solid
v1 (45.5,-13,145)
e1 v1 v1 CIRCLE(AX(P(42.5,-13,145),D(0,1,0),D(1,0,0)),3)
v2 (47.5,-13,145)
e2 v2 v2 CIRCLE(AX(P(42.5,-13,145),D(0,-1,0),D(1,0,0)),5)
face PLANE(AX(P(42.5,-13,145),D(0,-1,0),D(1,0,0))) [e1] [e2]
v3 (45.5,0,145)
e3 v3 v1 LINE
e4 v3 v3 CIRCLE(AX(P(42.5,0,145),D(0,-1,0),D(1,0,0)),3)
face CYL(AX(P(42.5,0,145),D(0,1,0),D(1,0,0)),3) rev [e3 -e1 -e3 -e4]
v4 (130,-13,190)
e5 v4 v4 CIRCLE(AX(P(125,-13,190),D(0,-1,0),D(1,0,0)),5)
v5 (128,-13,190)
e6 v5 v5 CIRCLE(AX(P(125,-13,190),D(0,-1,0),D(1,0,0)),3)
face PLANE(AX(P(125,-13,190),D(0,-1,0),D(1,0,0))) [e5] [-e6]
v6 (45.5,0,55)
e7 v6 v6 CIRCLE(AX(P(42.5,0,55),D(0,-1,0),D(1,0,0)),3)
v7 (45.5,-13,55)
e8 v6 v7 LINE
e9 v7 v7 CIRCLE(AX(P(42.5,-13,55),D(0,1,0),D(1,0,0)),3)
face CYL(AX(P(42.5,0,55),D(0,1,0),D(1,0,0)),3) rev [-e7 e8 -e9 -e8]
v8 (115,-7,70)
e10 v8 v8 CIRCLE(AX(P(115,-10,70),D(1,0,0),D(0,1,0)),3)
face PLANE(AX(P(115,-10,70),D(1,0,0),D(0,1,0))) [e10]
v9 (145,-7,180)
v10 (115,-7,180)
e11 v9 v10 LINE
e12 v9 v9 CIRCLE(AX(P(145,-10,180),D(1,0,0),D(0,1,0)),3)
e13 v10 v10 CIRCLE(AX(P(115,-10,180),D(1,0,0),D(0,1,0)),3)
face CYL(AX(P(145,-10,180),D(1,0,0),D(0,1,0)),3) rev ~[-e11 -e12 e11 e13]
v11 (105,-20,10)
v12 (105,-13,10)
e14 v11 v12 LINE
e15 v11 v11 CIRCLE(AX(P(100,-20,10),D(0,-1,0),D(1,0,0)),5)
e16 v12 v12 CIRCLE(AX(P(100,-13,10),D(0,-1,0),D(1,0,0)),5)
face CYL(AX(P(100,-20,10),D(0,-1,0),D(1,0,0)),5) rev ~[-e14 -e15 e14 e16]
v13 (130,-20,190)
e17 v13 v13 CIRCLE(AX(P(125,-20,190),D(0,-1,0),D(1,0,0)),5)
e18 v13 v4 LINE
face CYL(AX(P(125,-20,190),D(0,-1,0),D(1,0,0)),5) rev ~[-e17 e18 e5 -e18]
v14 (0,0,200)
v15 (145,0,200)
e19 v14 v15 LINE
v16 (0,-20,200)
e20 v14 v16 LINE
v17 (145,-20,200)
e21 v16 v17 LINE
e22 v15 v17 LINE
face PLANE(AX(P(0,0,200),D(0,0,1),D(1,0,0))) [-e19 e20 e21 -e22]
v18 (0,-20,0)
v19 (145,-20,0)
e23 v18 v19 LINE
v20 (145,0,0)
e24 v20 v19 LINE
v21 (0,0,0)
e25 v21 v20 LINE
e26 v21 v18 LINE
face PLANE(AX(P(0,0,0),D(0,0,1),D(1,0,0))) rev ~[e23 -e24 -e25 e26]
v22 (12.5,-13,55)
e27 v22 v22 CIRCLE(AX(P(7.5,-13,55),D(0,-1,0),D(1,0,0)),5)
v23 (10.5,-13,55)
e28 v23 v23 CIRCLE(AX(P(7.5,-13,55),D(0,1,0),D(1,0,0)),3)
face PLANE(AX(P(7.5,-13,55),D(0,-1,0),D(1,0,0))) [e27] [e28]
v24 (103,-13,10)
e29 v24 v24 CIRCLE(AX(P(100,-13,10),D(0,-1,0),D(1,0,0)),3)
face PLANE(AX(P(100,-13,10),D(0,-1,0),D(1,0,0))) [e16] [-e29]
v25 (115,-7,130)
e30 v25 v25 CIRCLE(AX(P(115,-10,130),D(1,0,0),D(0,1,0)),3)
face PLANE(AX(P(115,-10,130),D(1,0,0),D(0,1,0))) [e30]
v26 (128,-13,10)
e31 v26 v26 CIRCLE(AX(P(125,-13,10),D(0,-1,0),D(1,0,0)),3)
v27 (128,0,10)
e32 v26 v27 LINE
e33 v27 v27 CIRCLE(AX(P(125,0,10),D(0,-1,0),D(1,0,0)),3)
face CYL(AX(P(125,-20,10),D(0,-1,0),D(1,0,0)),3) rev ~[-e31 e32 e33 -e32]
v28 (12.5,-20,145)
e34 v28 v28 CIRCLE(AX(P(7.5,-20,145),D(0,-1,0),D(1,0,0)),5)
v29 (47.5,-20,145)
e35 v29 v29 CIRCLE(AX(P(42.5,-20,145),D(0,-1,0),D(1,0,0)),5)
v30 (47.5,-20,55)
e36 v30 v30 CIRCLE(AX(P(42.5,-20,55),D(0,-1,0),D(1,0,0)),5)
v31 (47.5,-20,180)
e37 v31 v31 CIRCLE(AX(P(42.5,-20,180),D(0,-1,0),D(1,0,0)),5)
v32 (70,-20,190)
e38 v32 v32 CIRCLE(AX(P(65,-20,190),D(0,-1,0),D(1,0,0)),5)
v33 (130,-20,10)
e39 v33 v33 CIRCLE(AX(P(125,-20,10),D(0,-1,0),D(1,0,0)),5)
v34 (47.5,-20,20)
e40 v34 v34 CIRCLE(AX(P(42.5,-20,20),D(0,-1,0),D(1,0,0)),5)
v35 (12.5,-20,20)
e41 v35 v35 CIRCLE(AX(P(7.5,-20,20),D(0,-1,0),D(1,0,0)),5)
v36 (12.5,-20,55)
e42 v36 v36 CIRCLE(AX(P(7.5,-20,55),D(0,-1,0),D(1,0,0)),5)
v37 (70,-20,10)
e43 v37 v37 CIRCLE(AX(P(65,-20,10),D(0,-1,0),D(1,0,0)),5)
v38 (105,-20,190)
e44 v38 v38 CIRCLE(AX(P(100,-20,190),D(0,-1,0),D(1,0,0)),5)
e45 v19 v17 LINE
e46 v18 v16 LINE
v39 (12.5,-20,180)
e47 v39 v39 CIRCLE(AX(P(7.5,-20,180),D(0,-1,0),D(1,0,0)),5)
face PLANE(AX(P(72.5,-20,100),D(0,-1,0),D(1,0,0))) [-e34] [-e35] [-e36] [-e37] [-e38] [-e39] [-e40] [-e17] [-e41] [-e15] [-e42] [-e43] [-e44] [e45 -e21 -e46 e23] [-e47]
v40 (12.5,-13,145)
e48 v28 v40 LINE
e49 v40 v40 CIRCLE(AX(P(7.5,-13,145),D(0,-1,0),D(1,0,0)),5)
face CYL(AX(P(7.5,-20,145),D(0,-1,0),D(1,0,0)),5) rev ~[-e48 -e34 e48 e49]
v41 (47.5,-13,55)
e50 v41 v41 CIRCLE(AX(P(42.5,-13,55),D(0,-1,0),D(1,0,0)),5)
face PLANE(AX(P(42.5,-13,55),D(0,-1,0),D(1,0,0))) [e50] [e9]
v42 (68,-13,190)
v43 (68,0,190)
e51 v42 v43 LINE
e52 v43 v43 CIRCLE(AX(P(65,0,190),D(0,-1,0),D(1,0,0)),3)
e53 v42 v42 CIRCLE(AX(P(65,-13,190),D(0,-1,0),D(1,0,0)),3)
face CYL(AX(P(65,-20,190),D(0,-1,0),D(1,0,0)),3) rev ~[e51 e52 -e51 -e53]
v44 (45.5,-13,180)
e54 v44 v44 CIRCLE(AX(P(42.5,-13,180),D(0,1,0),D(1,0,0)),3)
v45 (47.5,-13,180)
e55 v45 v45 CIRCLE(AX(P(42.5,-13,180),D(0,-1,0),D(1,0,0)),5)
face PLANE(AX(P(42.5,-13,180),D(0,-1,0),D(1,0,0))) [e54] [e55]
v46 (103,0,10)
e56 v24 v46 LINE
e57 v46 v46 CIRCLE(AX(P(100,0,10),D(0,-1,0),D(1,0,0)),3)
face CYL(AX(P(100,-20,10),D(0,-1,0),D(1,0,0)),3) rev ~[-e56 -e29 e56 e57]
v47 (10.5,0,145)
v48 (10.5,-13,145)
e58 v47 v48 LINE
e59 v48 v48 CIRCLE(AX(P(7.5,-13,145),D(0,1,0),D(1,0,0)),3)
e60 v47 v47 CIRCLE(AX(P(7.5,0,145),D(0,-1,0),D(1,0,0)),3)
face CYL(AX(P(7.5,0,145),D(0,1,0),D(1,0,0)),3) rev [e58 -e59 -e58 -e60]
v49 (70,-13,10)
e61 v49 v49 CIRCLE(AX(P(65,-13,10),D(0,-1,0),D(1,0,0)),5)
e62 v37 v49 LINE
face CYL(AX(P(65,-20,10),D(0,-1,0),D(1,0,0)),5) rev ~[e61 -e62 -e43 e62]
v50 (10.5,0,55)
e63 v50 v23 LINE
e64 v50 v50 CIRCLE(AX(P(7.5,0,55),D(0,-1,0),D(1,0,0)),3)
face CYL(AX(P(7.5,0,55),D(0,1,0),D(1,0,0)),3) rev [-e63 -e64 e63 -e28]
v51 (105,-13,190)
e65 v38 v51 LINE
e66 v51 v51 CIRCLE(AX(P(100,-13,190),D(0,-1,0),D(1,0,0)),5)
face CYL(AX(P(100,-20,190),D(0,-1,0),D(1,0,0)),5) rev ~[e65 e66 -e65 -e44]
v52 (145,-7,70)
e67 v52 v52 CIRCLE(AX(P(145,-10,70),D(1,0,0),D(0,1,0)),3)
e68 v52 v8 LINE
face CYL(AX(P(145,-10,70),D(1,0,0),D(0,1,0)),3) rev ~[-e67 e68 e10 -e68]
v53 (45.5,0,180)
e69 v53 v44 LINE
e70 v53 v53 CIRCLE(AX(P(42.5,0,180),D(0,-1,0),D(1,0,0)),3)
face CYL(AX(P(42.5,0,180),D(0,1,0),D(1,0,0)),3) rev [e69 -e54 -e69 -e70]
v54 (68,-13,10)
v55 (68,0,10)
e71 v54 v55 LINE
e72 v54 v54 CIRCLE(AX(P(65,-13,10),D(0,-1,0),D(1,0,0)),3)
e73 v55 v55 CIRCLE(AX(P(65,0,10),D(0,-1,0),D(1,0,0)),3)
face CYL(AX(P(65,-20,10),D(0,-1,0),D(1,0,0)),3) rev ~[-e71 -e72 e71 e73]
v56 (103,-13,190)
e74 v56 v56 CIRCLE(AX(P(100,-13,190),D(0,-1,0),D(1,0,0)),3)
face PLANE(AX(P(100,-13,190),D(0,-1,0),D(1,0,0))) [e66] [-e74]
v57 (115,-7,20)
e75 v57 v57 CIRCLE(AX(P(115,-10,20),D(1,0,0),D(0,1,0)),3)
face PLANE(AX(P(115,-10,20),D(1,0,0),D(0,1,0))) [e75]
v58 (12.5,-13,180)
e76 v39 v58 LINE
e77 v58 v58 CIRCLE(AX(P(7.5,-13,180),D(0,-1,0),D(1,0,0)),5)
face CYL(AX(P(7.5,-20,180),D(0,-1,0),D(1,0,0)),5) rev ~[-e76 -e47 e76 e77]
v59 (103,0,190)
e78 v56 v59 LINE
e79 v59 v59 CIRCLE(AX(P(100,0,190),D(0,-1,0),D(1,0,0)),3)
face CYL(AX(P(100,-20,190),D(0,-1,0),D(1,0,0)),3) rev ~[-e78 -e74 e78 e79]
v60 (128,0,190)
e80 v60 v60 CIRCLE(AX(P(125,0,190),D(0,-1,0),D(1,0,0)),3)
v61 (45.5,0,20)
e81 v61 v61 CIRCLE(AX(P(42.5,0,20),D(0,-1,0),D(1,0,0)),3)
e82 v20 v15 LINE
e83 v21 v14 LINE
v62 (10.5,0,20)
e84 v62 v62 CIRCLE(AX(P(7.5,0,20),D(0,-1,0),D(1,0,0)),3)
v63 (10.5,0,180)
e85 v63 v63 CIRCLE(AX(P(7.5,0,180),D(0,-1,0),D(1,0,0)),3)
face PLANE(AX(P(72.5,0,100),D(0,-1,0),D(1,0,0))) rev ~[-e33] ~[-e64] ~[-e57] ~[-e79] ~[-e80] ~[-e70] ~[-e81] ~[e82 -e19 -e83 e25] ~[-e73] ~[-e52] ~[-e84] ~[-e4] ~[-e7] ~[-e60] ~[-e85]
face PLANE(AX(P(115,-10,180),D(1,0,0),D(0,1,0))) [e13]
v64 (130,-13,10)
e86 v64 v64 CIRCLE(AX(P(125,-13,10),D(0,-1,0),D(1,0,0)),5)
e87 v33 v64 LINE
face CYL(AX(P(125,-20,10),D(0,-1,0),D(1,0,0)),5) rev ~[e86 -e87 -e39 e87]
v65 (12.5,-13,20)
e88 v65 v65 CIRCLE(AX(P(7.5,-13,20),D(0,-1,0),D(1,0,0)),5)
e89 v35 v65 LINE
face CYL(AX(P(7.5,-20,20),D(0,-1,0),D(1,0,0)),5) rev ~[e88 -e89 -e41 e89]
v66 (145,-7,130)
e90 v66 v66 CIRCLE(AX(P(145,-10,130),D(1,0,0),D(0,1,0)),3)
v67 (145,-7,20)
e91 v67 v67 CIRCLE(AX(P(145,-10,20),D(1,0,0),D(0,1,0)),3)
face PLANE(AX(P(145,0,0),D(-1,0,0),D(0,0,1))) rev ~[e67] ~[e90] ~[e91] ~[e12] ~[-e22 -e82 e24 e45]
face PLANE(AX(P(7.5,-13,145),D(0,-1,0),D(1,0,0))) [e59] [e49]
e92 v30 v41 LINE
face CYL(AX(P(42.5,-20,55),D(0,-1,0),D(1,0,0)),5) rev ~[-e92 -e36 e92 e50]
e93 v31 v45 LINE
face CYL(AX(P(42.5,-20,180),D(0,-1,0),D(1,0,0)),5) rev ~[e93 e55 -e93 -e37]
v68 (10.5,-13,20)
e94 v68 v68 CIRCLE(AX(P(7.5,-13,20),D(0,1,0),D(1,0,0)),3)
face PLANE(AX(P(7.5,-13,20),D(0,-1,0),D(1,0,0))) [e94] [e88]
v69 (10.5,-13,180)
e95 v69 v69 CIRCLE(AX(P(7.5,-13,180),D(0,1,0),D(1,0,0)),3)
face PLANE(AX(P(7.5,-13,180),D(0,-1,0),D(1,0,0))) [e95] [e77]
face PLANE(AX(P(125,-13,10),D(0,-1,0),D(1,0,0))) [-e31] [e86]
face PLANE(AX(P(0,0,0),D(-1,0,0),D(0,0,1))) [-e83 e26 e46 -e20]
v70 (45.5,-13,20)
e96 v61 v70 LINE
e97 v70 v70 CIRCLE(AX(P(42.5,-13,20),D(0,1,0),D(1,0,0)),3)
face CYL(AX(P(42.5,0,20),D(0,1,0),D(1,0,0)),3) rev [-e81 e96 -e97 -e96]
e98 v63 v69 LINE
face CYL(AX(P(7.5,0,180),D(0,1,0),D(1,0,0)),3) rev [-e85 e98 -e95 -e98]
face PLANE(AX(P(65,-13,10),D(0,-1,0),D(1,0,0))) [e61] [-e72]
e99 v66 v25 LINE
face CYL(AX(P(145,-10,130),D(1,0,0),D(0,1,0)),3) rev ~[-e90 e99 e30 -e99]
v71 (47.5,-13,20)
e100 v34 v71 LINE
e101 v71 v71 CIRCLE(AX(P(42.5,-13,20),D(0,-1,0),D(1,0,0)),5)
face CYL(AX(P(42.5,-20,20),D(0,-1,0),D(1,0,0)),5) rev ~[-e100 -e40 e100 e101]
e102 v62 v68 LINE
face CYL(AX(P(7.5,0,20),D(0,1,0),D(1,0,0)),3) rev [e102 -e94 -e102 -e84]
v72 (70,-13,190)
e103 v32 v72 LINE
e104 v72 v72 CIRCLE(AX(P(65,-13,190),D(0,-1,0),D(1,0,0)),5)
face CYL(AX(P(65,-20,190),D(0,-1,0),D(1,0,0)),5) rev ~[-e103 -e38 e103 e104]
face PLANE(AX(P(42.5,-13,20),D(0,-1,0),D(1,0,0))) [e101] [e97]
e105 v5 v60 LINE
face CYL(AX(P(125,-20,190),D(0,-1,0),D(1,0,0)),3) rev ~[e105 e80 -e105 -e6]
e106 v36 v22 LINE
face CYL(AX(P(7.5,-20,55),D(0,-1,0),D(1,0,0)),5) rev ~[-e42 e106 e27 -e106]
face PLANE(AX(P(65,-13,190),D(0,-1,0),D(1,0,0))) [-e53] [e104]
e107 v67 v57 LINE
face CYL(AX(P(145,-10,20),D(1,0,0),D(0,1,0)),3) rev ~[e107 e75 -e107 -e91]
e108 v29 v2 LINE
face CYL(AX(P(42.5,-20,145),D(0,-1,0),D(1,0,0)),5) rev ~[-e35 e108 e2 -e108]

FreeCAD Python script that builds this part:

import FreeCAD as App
import Part
import Sketcher
Q = App.Units.Quantity

doc = App.newDocument("Part")
body = doc.addObject("PartDesign::Body", "Body")

sketch1 = body.newObject("Sketcher::SketchObject", "Sketch")
sketch1.AttachmentSupport = (doc.getObject("XZ_Plane"), [""])
sketch1.MapMode = "FlatFace"
sketch1.addGeometry([
    Part.LineSegment(App.Vector(0, 200, 0), App.Vector(0, 0, 0)),
    Part.LineSegment(App.Vector(0, 0, 0), App.Vector(145, 0, 0)),
    Part.LineSegment(App.Vector(145, 0, 0), App.Vector(145, 200, 0)),
    Part.LineSegment(App.Vector(145, 200, 0), App.Vector(0, 200, 0)),
    Part.Circle(App.Vector(7.5, 20, 0), App.Vector(0, 0, 1), 3),
    Part.Circle(App.Vector(7.5, 55, 0), App.Vector(0, 0, 1), 3),
    Part.Circle(App.Vector(42.5, 20, 0), App.Vector(0, 0, 1), 3),
    Part.Circle(App.Vector(42.5, 55, 0), App.Vector(0, 0, 1), 3),
    Part.Circle(App.Vector(7.5, 145, 0), App.Vector(0, 0, 1), 3),
    Part.Circle(App.Vector(7.5, 180, 0), App.Vector(0, 0, 1), 3),
    Part.Circle(App.Vector(42.5, 145, 0), App.Vector(0, 0, 1), 3),
    Part.Circle(App.Vector(42.5, 180, 0), App.Vector(0, 0, 1), 3),
], False)
sketch1.addConstraint([
    Sketcher.Constraint("Coincident", 0, 2, 1, 1),
    Sketcher.Constraint("Coincident", 1, 2, 2, 1),
    Sketcher.Constraint("Coincident", 2, 2, 3, 1),
    Sketcher.Constraint("Coincident", 3, 2, 0, 1),
    Sketcher.Constraint("Vertical", 0),
    Sketcher.Constraint("Horizontal", 1),
    Sketcher.Constraint("Vertical", 2),
    Sketcher.Constraint("Horizontal", 3),
    Sketcher.Constraint("Coincident", 0, 2, -1, 1),
    Sketcher.Constraint("Equal", 4, 5),
    Sketcher.Constraint("Equal", 5, 6),
    Sketcher.Constraint("Equal", 6, 7),
    Sketcher.Constraint("Equal", 7, 8),
    Sketcher.Constraint("Equal", 8, 9),
    Sketcher.Constraint("Equal", 9, 10),
    Sketcher.Constraint("Equal", 10, 11),
    Sketcher.Constraint("Horizontal", 4, 3, 6, 3),
    Sketcher.Constraint("Horizontal", 5, 3, 7, 3),
    Sketcher.Constraint("Horizontal", 8, 3, 10, 3),
    Sketcher.Constraint("Horizontal", 9, 3, 11, 3),
    Sketcher.Constraint("Vertical", 4, 3, 5, 3),
    Sketcher.Constraint("Vertical", 6, 3, 7, 3),
    Sketcher.Constraint("Vertical", 5, 3, 8, 3),
    Sketcher.Constraint("Vertical", 8, 3, 9, 3),
    Sketcher.Constraint("Vertical", 7, 3, 10, 3),
    Sketcher.Constraint("Vertical", 10, 3, 11, 3),
    Sketcher.Constraint("Diameter", 4, Q("6 mm")),
    Sketcher.Constraint("DistanceX", 1, 1, 1, 2, Q("145 mm")),
    Sketcher.Constraint("DistanceY", 0, 2, 0, 1, Q("200 mm")),
    Sketcher.Constraint("DistanceY", -1, 1, 4, 3, Q("20 mm")),
    Sketcher.Constraint("DistanceY", -1, 1, 5, 3, Q("55 mm")),
    Sketcher.Constraint("DistanceY", -1, 1, 8, 3, Q("145 mm")),
    Sketcher.Constraint("DistanceY", -1, 1, 9, 3, Q("180 mm")),
    Sketcher.Constraint("DistanceX", 4, 3, 6, 3, Q("35 mm")),
    Sketcher.Constraint("DistanceX", -1, 1, 4, 3, Q("7.5 mm")),
])
pad1 = body.newObject("PartDesign::Pad", "Pad")
pad1.Profile = sketch1
pad1.Length = 20

sketch2 = body.newObject("Sketcher::SketchObject", "Sketch001")
sketch2.AttachmentSupport = (doc.getObject("XZ_Plane"), [""])
sketch2.MapMode = "FlatFace"
sketch2.AttachmentOffset = App.Placement(App.Vector(0, 0, 20), App.Rotation())
sketch2.addGeometry([
    Part.Circle(App.Vector(8, 180, 0), App.Vector(0, 0, 1), 5),
    Part.Circle(App.Vector(42, 180, 0), App.Vector(0, 0, 1), 5),
    Part.Circle(App.Vector(8, 145, 0), App.Vector(0, 0, 1), 5),
    Part.Circle(App.Vector(42, 145, 0), App.Vector(0, 0, 1), 5),
    Part.Circle(App.Vector(8, 55, 0), App.Vector(0, 0, 1), 5),
    Part.Circle(App.Vector(42, 55, 0), App.Vector(0, 0, 1), 5),
    Part.Circle(App.Vector(8, 20, 0), App.Vector(0, 0, 1), 5),
    Part.Circle(App.Vector(42, 20, 0), App.Vector(0, 0, 1), 5),
], False)
sketch2.addConstraint([
    Sketcher.Constraint("Equal", 0, 1),
    Sketcher.Constraint("Equal", 1, 2),
    Sketcher.Constraint("Equal", 2, 3),
    Sketcher.Constraint("Equal", 3, 4),
    Sketcher.Constraint("Equal", 4, 5),
    Sketcher.Constraint("Equal", 5, 6),
    Sketcher.Constraint("Equal", 6, 7),
    Sketcher.Constraint("Horizontal", 0, 3, 1, 3),
    Sketcher.Constraint("Horizontal", 2, 3, 3, 3),
    Sketcher.Constraint("Horizontal", 4, 3, 5, 3),
    Sketcher.Constraint("Horizontal", 6, 3, 7, 3),
    Sketcher.Constraint("Vertical", 0, 3, 2, 3),
    Sketcher.Constraint("Vertical", 1, 3, 3, 3),
    Sketcher.Constraint("Vertical", 2, 3, 4, 3),
    Sketcher.Constraint("Vertical", 3, 3, 5, 3),
    Sketcher.Constraint("Vertical", 4, 3, 6, 3),
    Sketcher.Constraint("Vertical", 5, 3, 7, 3),
    Sketcher.Constraint("Diameter", 0, Q("10 mm")),
    Sketcher.Constraint("DistanceY", -1, 1, 0, 3, Q("180 mm")),
    Sketcher.Constraint("DistanceY", -1, 1, 2, 3, Q("145 mm")),
    Sketcher.Constraint("DistanceY", -1, 1, 4, 3, Q("55 mm")),
    Sketcher.Constraint("DistanceY", -1, 1, 6, 3, Q("20 mm")),
    Sketcher.Constraint("DistanceX", 0, 3, 1, 3, Q("35 mm")),
    Sketcher.Constraint("DistanceX", -1, 1, 0, 3, Q("7.5 mm")),
])
pocket1 = body.newObject("PartDesign::Pocket", "Pocket")
pocket1.Profile = sketch2
pocket1.Length = 7

sketch3 = body.newObject("Sketcher::SketchObject", "Sketch002")
sketch3.AttachmentSupport = (doc.getObject("YZ_Plane"), [""])
sketch3.MapMode = "FlatFace"
sketch3.AttachmentOffset = App.Placement(App.Vector(0, 0, 145), App.Rotation())
sketch3.addGeometry([
    Part.Circle(App.Vector(-10, 20, 0), App.Vector(0, 0, 1), 3),
    Part.Circle(App.Vector(-10, 70, 0), App.Vector(0, 0, 1), 3),
    Part.Circle(App.Vector(-10, 130, 0), App.Vector(0, 0, 1), 3),
    Part.Circle(App.Vector(-10, 180, 0), App.Vector(0, 0, 1), 3),
], False)
sketch3.addConstraint([
    Sketcher.Constraint("Equal", 0, 1),
    Sketcher.Constraint("Equal", 1, 2),
    Sketcher.Constraint("Equal", 2, 3),
    Sketcher.Constraint("Vertical", 0, 3, 1, 3),
    Sketcher.Constraint("Vertical", 1, 3, 2, 3),
    Sketcher.Constraint("Vertical", 2, 3, 3, 3),
    Sketcher.Constraint("Diameter", 0, Q("6 mm")),
    Sketcher.Constraint("DistanceX", 0, 3, -1, 1, Q("10 mm")),
    Sketcher.Constraint("DistanceY", -1, 1, 0, 3, Q("20 mm")),
    Sketcher.Constraint("DistanceY", -1, 1, 1, 3, Q("70 mm")),
    Sketcher.Constraint("DistanceY", -1, 1, 2, 3, Q("130 mm")),
    Sketcher.Constraint("DistanceY", -1, 1, 3, 3, Q("180 mm")),
])
pocket2 = body.newObject("PartDesign::Pocket", "Pocket001")
pocket2.Profile = sketch3
pocket2.Length = 30

sketch4 = body.newObject("Sketcher::SketchObject", "Sketch003")
sketch4.AttachmentSupport = (doc.getObject("XZ_Plane"), [""])
sketch4.MapMode = "FlatFace"
sketch4.AttachmentOffset = App.Placement(App.Vector(0, 0, 20), App.Rotation())
sketch4.addGeometry([
    Part.Circle(App.Vector(125, 190, 0), App.Vector(0, 0, 1), 3),
    Part.Circle(App.Vector(100, 190, 0), App.Vector(0, 0, 1), 3),
    Part.Circle(App.Vector(65, 190, 0), App.Vector(0, 0, 1), 3),
    Part.Circle(App.Vector(125, 10, 0), App.Vector(0, 0, 1), 3),
    Part.Circle(App.Vector(100, 10, 0), App.Vector(0, 0, 1), 3),
    Part.Circle(App.Vector(65, 10, 0), App.Vector(0, 0, 1), 3),
], False)
sketch4.addConstraint([
    Sketcher.Constraint("Equal", 0, 1),
    Sketcher.Constraint("Equal", 1, 2),
    Sketcher.Constraint("Equal", 2, 3),
    Sketcher.Constraint("Equal", 3, 4),
    Sketcher.Constraint("Equal", 4, 5),
    Sketcher.Constraint("Horizontal", 0, 3, 1, 3),
    Sketcher.Constraint("Horizontal", 1, 3, 2, 3),
    Sketcher.Constraint("Horizontal", 3, 3, 4, 3),
    Sketcher.Constraint("Horizontal", 4, 3, 5, 3),
    Sketcher.Constraint("Vertical", 0, 3, 3, 3),
    Sketcher.Constraint("Vertical", 1, 3, 4, 3),
    Sketcher.Constraint("Vertical", 2, 3, 5, 3),
    Sketcher.Constraint("Diameter", 0, Q("6 mm")),
    Sketcher.Constraint("DistanceX", -1, 1, 0, 3, Q("125 mm")),
    Sketcher.Constraint("DistanceY", -1, 1, 0, 3, Q("190 mm")),
    Sketcher.Constraint("DistanceX", -1, 1, 1, 3, Q("100 mm")),
    Sketcher.Constraint("DistanceX", -1, 1, 2, 3, Q("65 mm")),
    Sketcher.Constraint("DistanceY", -1, 1, 3, 3, Q("10 mm")),
])
pocket3 = body.newObject("PartDesign::Pocket", "Pocket002")
pocket3.Profile = sketch4
pocket3.Length = 20

sketch5 = body.newObject("Sketcher::SketchObject", "Sketch004")
sketch5.AttachmentSupport = (doc.getObject("XZ_Plane"), [""])
sketch5.MapMode = "FlatFace"
sketch5.AttachmentOffset = App.Placement(App.Vector(0, 0, 20), App.Rotation())
sketch5.addGeometry([
    Part.Circle(App.Vector(65, 190, 0), App.Vector(0, 0, 1), 5),
    Part.Circle(App.Vector(100, 190, 0), App.Vector(0, 0, 1), 5),
    Part.Circle(App.Vector(125, 190, 0), App.Vector(0, 0, 1), 5),
    Part.Circle(App.Vector(65, 10, 0), App.Vector(0, 0, 1), 5),
    Part.Circle(App.Vector(100, 10, 0), App.Vector(0, 0, 1), 5),
    Part.Circle(App.Vector(125, 10, 0), App.Vector(0, 0, 1), 5),
], False)
sketch5.addConstraint([
    Sketcher.Constraint("Equal", 0, 1),
    Sketcher.Constraint("Equal", 1, 2),
    Sketcher.Constraint("Equal", 2, 3),
    Sketcher.Constraint("Equal", 3, 4),
    Sketcher.Constraint("Equal", 4, 5),
    Sketcher.Constraint("Horizontal", 0, 3, 1, 3),
    Sketcher.Constraint("Horizontal", 1, 3, 2, 3),
    Sketcher.Constraint("Horizontal", 3, 3, 4, 3),
    Sketcher.Constraint("Horizontal", 4, 3, 5, 3),
    Sketcher.Constraint("Vertical", 0, 3, 3, 3),
    Sketcher.Constraint("Vertical", 1, 3, 4, 3),
    Sketcher.Constraint("Vertical", 2, 3, 5, 3),
    Sketcher.Constraint("Diameter", 0, Q("10 mm")),
    Sketcher.Constraint("DistanceX", -1, 1, 0, 3, Q("65 mm")),
    Sketcher.Constraint("DistanceY", -1, 1, 0, 3, Q("190 mm")),
    Sketcher.Constraint("DistanceX", -1, 1, 1, 3, Q("100 mm")),
    Sketcher.Constraint("DistanceX", -1, 1, 2, 3, Q("125 mm")),
    Sketcher.Constraint("DistanceY", -1, 1, 3, 3, Q("10 mm")),
])
pocket4 = body.newObject("PartDesign::Pocket", "Pocket003")
pocket4.Profile = sketch5
pocket4.Length = 7

doc.recompute()
